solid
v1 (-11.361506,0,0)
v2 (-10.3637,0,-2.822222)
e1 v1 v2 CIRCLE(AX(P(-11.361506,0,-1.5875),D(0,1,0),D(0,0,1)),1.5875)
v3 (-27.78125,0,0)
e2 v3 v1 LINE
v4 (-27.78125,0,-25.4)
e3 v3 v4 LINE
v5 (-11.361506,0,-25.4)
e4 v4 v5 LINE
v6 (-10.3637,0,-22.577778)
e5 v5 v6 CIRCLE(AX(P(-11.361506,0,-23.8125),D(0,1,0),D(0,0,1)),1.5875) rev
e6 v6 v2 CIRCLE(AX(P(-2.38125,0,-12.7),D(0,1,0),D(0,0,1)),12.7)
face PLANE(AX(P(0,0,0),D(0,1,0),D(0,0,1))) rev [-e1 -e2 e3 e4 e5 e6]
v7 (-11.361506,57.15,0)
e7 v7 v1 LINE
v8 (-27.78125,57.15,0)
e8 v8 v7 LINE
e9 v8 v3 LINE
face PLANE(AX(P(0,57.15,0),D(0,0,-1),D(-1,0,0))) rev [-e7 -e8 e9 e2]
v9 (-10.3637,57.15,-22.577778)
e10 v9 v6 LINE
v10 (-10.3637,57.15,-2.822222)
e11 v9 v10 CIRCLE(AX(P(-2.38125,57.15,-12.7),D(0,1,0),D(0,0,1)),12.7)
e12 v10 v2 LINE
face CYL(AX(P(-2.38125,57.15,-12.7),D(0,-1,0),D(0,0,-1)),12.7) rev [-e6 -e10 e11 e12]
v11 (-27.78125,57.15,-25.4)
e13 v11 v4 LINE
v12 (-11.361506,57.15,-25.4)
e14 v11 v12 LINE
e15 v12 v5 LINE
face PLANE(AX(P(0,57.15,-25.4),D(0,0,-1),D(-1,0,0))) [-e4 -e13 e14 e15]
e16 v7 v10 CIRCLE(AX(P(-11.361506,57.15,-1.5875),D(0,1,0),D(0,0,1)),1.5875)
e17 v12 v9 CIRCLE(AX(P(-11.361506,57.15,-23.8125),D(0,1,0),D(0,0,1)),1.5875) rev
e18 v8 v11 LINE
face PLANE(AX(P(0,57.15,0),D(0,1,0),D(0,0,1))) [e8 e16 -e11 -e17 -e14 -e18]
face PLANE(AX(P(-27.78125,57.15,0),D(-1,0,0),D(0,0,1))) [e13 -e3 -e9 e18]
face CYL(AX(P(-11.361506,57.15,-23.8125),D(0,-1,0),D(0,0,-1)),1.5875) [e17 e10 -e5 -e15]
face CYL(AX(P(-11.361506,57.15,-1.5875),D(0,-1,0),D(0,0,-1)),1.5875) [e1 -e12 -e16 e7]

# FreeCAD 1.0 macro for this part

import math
import FreeCAD as App
import Part
import Sketcher
Q = App.Units.Quantity

doc = App.newDocument("Part")
body = doc.addObject("PartDesign::Body", "Body")

sketch1 = body.newObject("Sketcher::SketchObject", "Sketch")
sketch1.AttachmentSupport = (doc.getObject("XZ_Plane"), [""])
sketch1.MapMode = "FlatFace"
sketch1.addGeometry([
    Part.LineSegment(App.Vector(-27.78125, -25.4, 0), App.Vector(-27.78125, 0, 0)),
    Part.LineSegment(App.Vector(-27.78125, 0, 0), App.Vector(-11.361506, 0, 0)),
    Part.ArcOfCircle(Part.Circle(App.Vector(-11.361506, -1.5875, 0), App.Vector(0, 0, 1), 1.5875), math.radians(-51.057559), math.radians(90)),
    Part.ArcOfCircle(Part.Circle(App.Vector(-2.38125, -12.7, 0), App.Vector(0, 0, 1), 12.7), math.radians(128.942441), math.radians(231.057559)),
    Part.ArcOfCircle(Part.Circle(App.Vector(-11.361506, -23.8125, 0), App.Vector(0, 0, 1), 1.5875), math.radians(-90), math.radians(51.057559)),
    Part.LineSegment(App.Vector(-11.361506, -25.4, 0), App.Vector(-27.78125, -25.4, 0)),
], False)
sketch1.addConstraint([
    Sketcher.Constraint("Coincident", 0, 2, 1, 1),
    Sketcher.Constraint("Tangent", 1, 2, 2, 2),
    Sketcher.Constraint("Tangent", 2, 1, 3, 1),
    Sketcher.Constraint("Tangent", 3, 2, 4, 2),
    Sketcher.Constraint("Tangent", 4, 1, 5, 1),
    Sketcher.Constraint("Coincident", 5, 2, 0, 1),
    Sketcher.Constraint("Vertical", 0),
    Sketcher.Constraint("Horizontal", 1),
    Sketcher.Constraint("Horizontal", 5),
    Sketcher.Constraint("Equal", 2, 4),
    Sketcher.Constraint("PointOnObject", 0, 2, -1),
    Sketcher.Constraint("Vertical", 2, 3, 4, 3),
    Sketcher.Constraint("Radius", 3, Q("0.5 in")),
    Sketcher.Constraint("DistanceY", 0, 1, 0, 2, Q("1 in")),
    Sketcher.Constraint("Radius", 2, Q("0.0625 in")),
    Sketcher.Constraint("DistanceX", 0, 2, 3, 3, Q("1 in")),
    Sketcher.Constraint("DistanceX", 3, 3, -1, 1, Q("0.09375 in")),
])
pad1 = body.newObject("PartDesign::Pad", "Pad")
pad1.Profile = sketch1
pad1.Length = Q("2.25 in")
pad1.Reversed = True

doc.recompute()
